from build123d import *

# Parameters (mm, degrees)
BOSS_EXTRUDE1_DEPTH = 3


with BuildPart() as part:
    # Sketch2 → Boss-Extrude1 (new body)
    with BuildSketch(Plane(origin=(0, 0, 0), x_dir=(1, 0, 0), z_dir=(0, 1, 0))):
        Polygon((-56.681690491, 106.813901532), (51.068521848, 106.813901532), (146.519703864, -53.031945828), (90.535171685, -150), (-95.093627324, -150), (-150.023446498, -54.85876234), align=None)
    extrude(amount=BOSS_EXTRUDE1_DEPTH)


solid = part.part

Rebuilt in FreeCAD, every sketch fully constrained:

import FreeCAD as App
import Part
import Sketcher
Q = App.Units.Quantity


def add_polygon(sketch, points):
    """Adds a closed chain of lines whose ends are joined by coincident constraints."""
    first, n = sketch.GeometryCount, len(points)
    for a, b in zip(points, points[1:] + points[:1]):
        sketch.addGeometry(Part.LineSegment(App.Vector(*a, 0), App.Vector(*b, 0)), False)
    for i in range(n):
        sketch.addConstraint(Sketcher.Constraint("Coincident", first + i, 2, first + (i + 1) % n, 1))

doc = App.newDocument("Part")
body = doc.addObject("PartDesign::Body", "Body")

sketch1 = body.newObject("Sketcher::SketchObject", "Sketch")
sketch1.AttachmentSupport = (doc.getObject("XZ_Plane"), [""])
sketch1.MapMode = "FlatFace"
add_polygon(sketch1, [(51, -107), (-57, -107), (-150, 55), (-95, 150), (91, 150), (147, 53)])
sketch1.addConstraint([
    Sketcher.Constraint("Horizontal", 0),
    Sketcher.Constraint("Horizontal", 3),
    Sketcher.Constraint("Parallel", 1, 4),
    Sketcher.Constraint("Angle", 1, Q("120 deg")),
    Sketcher.Constraint("Angle", 2, Q("60 deg")),
    Sketcher.Constraint("DistanceY", -1, 1, 2, 2, 150.0),
    Sketcher.Constraint("DistanceX", 3, 1, 3, 2, 185.628799),
    Sketcher.Constraint("DistanceY", 0, 2, -1, 1, 106.813902),
    Sketcher.Constraint("Distance", 2, 109.859638),
    Sketcher.Constraint("DistanceX", 0, 2, 0, 1, 107.750212),
    Sketcher.Constraint("DistanceX", 0, 2, -1, 1, 56.68169),
    Sketcher.Constraint("DistanceX", 2, 2, 4, 2, 241.613331),
])
pad1 = body.newObject("PartDesign::Pad", "Pad")
pad1.Profile = sketch1
pad1.Length = 3
pad1.Reversed = True

doc.recompute()
